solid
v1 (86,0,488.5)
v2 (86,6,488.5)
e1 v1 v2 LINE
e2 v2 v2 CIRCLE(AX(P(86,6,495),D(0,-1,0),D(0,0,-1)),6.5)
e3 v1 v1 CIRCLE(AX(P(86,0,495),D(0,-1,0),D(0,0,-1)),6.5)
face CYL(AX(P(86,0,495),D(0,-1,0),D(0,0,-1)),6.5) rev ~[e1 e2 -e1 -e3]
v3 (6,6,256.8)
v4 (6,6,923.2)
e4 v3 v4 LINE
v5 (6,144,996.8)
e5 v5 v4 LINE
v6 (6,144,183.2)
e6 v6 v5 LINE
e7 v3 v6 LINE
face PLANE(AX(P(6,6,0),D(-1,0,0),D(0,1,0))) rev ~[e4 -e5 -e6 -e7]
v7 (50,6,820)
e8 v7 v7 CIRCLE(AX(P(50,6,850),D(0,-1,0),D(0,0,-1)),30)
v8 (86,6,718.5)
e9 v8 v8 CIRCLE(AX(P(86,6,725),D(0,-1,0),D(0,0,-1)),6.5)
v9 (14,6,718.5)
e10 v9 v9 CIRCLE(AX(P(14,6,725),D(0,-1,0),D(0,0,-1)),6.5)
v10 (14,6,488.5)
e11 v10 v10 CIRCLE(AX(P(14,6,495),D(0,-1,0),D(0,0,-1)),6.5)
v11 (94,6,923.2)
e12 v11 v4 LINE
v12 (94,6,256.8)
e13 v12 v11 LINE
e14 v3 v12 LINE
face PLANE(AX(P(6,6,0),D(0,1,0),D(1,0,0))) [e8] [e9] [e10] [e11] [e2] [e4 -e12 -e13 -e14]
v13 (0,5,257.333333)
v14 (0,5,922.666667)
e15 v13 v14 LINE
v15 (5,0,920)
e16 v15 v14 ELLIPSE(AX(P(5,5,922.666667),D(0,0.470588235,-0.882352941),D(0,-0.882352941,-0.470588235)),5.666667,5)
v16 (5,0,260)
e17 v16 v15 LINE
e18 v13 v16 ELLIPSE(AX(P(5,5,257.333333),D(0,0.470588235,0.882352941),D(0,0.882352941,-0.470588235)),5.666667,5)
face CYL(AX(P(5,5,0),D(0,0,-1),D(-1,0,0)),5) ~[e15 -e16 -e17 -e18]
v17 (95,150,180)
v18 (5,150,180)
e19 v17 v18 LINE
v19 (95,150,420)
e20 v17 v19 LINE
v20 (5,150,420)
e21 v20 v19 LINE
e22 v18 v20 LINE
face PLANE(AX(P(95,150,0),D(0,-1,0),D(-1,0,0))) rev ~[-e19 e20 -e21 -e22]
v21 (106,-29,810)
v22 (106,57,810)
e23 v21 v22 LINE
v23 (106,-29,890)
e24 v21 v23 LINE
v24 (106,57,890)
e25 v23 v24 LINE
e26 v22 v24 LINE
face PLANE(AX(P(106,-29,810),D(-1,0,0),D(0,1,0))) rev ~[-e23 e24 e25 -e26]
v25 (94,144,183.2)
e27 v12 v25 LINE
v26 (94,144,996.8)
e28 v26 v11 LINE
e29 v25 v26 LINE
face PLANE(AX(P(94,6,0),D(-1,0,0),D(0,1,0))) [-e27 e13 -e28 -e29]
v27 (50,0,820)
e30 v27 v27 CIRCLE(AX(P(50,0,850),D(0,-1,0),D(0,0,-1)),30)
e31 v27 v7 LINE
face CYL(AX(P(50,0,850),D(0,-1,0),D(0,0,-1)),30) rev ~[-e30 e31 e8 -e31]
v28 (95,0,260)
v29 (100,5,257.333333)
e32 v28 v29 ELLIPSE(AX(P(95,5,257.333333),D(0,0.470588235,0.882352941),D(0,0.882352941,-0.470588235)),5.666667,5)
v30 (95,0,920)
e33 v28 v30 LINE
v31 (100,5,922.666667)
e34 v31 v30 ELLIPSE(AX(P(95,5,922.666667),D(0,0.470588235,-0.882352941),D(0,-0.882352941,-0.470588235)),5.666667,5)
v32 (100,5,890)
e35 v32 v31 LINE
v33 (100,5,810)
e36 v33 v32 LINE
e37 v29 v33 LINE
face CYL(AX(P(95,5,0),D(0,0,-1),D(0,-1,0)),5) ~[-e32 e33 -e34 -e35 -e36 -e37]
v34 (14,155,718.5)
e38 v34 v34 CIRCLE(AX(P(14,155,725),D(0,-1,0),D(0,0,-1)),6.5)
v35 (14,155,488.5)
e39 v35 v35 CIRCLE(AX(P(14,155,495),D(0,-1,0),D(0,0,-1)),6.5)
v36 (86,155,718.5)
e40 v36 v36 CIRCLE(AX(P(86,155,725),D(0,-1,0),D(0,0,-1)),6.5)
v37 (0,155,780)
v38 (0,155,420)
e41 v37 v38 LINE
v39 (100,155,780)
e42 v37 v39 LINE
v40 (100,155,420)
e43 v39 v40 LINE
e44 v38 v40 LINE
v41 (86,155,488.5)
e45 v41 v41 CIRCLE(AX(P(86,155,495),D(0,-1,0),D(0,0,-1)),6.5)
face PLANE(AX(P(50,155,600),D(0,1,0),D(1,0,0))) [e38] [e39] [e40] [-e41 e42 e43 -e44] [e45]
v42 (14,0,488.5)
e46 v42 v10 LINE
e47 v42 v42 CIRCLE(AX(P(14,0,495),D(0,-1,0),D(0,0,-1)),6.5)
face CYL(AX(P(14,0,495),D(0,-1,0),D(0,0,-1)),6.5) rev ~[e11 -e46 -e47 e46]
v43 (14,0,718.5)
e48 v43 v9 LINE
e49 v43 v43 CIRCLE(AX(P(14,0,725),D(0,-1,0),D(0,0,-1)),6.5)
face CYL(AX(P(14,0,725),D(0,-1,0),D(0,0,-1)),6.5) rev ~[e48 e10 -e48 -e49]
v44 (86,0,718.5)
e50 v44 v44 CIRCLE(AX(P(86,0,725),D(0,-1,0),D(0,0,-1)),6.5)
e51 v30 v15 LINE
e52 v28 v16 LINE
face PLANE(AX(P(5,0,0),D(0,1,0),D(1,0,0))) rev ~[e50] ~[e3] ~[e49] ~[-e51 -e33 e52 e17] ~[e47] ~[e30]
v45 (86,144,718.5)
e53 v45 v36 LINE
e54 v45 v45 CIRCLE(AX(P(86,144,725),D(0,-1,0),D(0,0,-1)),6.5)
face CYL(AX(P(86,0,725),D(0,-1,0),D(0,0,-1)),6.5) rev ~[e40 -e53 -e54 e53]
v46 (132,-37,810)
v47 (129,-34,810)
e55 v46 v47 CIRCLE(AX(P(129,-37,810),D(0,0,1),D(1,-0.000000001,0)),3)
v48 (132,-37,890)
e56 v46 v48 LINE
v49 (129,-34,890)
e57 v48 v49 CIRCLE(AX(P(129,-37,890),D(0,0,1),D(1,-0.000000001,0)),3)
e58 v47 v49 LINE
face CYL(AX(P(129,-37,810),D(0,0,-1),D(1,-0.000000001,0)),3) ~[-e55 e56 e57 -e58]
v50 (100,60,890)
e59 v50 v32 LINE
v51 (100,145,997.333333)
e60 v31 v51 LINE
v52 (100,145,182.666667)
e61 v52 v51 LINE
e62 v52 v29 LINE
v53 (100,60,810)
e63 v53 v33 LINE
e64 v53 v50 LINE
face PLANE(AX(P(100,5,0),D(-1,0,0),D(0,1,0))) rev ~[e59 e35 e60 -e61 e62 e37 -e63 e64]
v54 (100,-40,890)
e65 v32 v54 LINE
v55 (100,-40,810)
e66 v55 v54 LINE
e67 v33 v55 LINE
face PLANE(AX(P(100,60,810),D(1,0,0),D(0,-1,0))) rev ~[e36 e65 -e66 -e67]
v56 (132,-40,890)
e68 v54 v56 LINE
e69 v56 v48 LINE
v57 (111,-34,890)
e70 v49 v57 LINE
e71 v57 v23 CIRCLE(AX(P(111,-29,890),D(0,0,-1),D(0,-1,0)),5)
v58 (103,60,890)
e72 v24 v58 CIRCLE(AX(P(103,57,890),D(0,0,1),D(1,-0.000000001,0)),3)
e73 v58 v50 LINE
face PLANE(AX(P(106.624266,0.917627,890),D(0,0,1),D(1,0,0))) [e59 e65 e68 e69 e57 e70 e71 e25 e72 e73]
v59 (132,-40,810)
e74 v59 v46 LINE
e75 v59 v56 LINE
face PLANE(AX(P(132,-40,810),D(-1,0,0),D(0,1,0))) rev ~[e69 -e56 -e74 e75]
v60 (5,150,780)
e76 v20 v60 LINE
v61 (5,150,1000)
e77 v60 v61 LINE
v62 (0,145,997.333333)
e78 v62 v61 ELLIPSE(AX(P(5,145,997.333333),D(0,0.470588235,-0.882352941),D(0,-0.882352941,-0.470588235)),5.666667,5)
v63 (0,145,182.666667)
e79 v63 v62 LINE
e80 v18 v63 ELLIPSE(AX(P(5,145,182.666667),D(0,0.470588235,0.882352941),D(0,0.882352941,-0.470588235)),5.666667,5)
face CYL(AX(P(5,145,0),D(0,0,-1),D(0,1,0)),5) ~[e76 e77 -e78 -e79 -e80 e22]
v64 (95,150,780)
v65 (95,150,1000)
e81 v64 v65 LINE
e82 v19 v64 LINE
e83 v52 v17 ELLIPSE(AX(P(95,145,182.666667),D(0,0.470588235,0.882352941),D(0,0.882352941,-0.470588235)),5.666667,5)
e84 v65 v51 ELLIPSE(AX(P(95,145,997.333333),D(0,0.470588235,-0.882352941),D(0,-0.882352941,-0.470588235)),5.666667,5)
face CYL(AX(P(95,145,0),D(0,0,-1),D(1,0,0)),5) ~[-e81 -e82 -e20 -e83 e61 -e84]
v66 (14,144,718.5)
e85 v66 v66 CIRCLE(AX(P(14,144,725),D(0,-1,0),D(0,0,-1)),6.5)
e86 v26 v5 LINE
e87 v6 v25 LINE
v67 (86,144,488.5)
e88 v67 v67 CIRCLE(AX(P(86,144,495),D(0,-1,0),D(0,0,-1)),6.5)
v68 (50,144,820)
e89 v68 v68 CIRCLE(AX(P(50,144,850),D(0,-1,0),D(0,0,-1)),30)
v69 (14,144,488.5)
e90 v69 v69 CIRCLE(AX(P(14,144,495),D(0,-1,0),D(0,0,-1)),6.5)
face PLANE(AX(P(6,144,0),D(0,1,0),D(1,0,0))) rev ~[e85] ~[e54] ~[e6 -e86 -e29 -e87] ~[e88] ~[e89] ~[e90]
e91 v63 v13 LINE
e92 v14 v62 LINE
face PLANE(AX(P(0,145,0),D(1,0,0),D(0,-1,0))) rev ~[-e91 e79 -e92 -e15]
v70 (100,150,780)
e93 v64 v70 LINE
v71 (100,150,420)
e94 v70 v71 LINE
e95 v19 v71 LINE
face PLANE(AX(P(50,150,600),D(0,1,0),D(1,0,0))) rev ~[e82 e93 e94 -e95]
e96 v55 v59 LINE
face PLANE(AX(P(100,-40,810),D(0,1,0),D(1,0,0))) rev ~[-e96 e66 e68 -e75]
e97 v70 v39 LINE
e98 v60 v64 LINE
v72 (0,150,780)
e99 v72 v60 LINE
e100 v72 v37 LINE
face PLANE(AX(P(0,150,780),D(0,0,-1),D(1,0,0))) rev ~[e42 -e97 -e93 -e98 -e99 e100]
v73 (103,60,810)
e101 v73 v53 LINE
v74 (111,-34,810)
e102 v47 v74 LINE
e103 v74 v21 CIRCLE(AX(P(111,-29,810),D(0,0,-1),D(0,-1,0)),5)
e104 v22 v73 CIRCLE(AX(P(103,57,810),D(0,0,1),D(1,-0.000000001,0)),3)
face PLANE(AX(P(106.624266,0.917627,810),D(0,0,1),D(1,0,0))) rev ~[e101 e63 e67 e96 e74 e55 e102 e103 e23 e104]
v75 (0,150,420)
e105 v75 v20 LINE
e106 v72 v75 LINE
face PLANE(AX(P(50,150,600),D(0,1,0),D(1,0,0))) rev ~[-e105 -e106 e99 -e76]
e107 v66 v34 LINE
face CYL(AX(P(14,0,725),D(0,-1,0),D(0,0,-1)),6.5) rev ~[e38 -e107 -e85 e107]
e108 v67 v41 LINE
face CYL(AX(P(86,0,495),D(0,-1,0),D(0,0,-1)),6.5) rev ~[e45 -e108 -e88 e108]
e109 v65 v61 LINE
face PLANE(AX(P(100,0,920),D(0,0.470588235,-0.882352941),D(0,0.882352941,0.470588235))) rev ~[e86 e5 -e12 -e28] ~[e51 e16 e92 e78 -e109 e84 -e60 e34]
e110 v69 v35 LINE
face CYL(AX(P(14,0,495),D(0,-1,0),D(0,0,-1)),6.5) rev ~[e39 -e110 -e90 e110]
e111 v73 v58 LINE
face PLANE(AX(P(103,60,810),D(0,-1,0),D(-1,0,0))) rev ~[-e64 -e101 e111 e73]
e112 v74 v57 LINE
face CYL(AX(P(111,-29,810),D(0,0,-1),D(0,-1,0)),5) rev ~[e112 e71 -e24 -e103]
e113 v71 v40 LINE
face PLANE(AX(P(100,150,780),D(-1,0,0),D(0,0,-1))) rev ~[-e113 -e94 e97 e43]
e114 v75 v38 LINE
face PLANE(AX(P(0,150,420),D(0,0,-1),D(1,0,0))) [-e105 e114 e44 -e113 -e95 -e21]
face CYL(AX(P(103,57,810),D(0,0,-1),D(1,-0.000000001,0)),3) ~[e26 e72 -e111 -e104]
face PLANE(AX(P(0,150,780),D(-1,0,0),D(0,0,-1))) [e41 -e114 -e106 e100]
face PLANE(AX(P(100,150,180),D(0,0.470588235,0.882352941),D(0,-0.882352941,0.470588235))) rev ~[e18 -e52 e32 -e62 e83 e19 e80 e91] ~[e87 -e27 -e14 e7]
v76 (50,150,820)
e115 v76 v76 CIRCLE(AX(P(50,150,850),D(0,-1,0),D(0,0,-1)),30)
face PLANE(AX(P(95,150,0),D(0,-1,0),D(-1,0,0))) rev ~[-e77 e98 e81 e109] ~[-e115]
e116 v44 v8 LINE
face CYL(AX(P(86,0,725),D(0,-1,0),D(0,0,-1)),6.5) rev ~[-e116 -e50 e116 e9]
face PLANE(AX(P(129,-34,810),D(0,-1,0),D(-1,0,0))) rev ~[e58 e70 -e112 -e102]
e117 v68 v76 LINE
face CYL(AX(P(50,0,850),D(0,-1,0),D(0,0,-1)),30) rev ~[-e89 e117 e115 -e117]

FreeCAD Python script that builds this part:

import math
import FreeCAD as App
import Part
import Sketcher
Q = App.Units.Quantity


def add_polygon(sketch, points):
    """Adds a closed chain of lines whose ends are joined by coincident constraints."""
    first, n = sketch.GeometryCount, len(points)
    for a, b in zip(points, points[1:] + points[:1]):
        sketch.addGeometry(Part.LineSegment(App.Vector(*a, 0), App.Vector(*b, 0)), False)
    for i in range(n):
        sketch.addConstraint(Sketcher.Constraint("Coincident", first + i, 2, first + (i + 1) % n, 1))

doc = App.newDocument("Part")
body = doc.addObject("PartDesign::Body", "Body")

# Sketch on XY plane
sketch1 = body.newObject("Sketcher::SketchObject", "Sketch")
sketch1.AttachmentSupport = (doc.getObject("XY_Plane"), [""])
sketch1.MapMode = "FlatFace"
sketch1.addGeometry(Part.LineSegment(App.Vector(5, 0, 0), App.Vector(95, 0, 0)), False)  # 0
sketch1.addGeometry(Part.ArcOfCircle(Part.Circle(App.Vector(95, 5, 0), App.Vector(0, 0, 1), 5), math.radians(-90), math.radians(0)), False)  # 1
sketch1.addGeometry(Part.LineSegment(App.Vector(100, 5, 0), App.Vector(100, 145, 0)), False)  # 2
sketch1.addGeometry(Part.ArcOfCircle(Part.Circle(App.Vector(95, 145, 0), App.Vector(0, 0, 1), 5), math.radians(0), math.radians(90)), False)  # 3
sketch1.addGeometry(Part.LineSegment(App.Vector(95, 150, 0), App.Vector(5, 150, 0)), False)  # 4
sketch1.addGeometry(Part.ArcOfCircle(Part.Circle(App.Vector(5, 145, 0), App.Vector(0, 0, 1), 5), math.radians(90), math.radians(180)), False)  # 5
sketch1.addGeometry(Part.LineSegment(App.Vector(0, 145, 0), App.Vector(0, 5, 0)), False)  # 6
sketch1.addGeometry(Part.ArcOfCircle(Part.Circle(App.Vector(5, 5, 0), App.Vector(0, 0, 1), 5), math.radians(180), math.radians(270)), False)  # 7
add_polygon(sketch1, [(94, 6), (6, 6), (6, 144), (94, 144)])  # lines 8-11
sketch1.addConstraint(Sketcher.Constraint("Tangent", 0, 2, 1, 1))
sketch1.addConstraint(Sketcher.Constraint("Tangent", 1, 2, 2, 1))
sketch1.addConstraint(Sketcher.Constraint("Tangent", 2, 2, 3, 1))
sketch1.addConstraint(Sketcher.Constraint("Tangent", 3, 2, 4, 1))
sketch1.addConstraint(Sketcher.Constraint("Tangent", 4, 2, 5, 1))
sketch1.addConstraint(Sketcher.Constraint("Tangent", 5, 2, 6, 1))
sketch1.addConstraint(Sketcher.Constraint("Tangent", 6, 2, 7, 1))
sketch1.addConstraint(Sketcher.Constraint("Tangent", 7, 2, 0, 1))
sketch1.addConstraint(Sketcher.Constraint("Horizontal", 0))
sketch1.addConstraint(Sketcher.Constraint("Vertical", 2))
sketch1.addConstraint(Sketcher.Constraint("Horizontal", 4))
sketch1.addConstraint(Sketcher.Constraint("Vertical", 6))
sketch1.addConstraint(Sketcher.Constraint("Horizontal", 8))
sketch1.addConstraint(Sketcher.Constraint("Vertical", 9))
sketch1.addConstraint(Sketcher.Constraint("Horizontal", 10))
sketch1.addConstraint(Sketcher.Constraint("Vertical", 11))
sketch1.addConstraint(Sketcher.Constraint("Equal", 1, 3))
sketch1.addConstraint(Sketcher.Constraint("Equal", 3, 5))
sketch1.addConstraint(Sketcher.Constraint("Equal", 5, 7))
sketch1.addConstraint(Sketcher.Constraint("PointOnObject", 0, 2, -1))
sketch1.addConstraint(Sketcher.Constraint("PointOnObject", 5, 2, -2))
sketch1.addConstraint(Sketcher.Constraint("Radius", 1, Q("5 mm")))
sketch1.addConstraint(Sketcher.Constraint("DistanceX", 0, 1, 0, 2, Q("90 mm")))
sketch1.addConstraint(Sketcher.Constraint("DistanceX", 8, 2, 8, 1, Q("88 mm")))
sketch1.addConstraint(Sketcher.Constraint("DistanceY", 2, 1, 2, 2, Q("140 mm")))
sketch1.addConstraint(Sketcher.Constraint("DistanceY", 9, 1, 9, 2, Q("138 mm")))
sketch1.addConstraint(Sketcher.Constraint("DistanceX", -1, 1, 8, 2, Q("6 mm")))
sketch1.addConstraint(Sketcher.Constraint("DistanceY", -1, 1, 8, 2, Q("6 mm")))
pad1 = body.newObject("PartDesign::Pad", "Pad")
pad1.Profile = sketch1
pad1.Length = 1000

# Sketch on YZ plane
sketch2 = body.newObject("Sketcher::SketchObject", "Sketch001")
sketch2.AttachmentSupport = (doc.getObject("YZ_Plane"), [""])
sketch2.MapMode = "FlatFace"
sketch2.AttachmentOffset = App.Placement(App.Vector(0, 0, 100), App.Rotation())
add_polygon(sketch2, [(0, 920), (150, 1000), (0, 1000)])  # lines 0-2
sketch2.addConstraint(Sketcher.Constraint("Horizontal", 1))
sketch2.addConstraint(Sketcher.Constraint("Vertical", 2))
sketch2.addConstraint(Sketcher.Constraint("PointOnObject", 1, 2, -2))
sketch2.addConstraint(Sketcher.Constraint("DistanceX", 1, 2, 1, 1, Q("150 mm")))
sketch2.addConstraint(Sketcher.Constraint("DistanceY", 2, 2, 2, 1, Q("80 mm")))
sketch2.addConstraint(Sketcher.Constraint("DistanceY", -1, 1, 0, 2, Q("1000 mm")))
pocket1 = body.newObject("PartDesign::Pocket", "Pocket")
pocket1.Profile = sketch2
pocket1.Type = "ThroughAll"

# Sketch on YZ plane
sketch3 = body.newObject("Sketcher::SketchObject", "Sketch002")
sketch3.AttachmentSupport = (doc.getObject("YZ_Plane"), [""])
sketch3.MapMode = "FlatFace"
sketch3.AttachmentOffset = App.Placement(App.Vector(0, 0, 100), App.Rotation())
add_polygon(sketch3, [(150, 180), (0, 260), (0, 0), (150, 0)])  # lines 0-3
sketch3.addConstraint(Sketcher.Constraint("Vertical", 1))
sketch3.addConstraint(Sketcher.Constraint("Horizontal", 2))
sketch3.addConstraint(Sketcher.Constraint("Vertical", 3))
sketch3.addConstraint(Sketcher.Constraint("Coincident", 1, 2, -1, 1))
sketch3.addConstraint(Sketcher.Constraint("DistanceX", 2, 1, 2, 2, Q("150 mm")))
sketch3.addConstraint(Sketcher.Constraint("DistanceY", 1, 2, 1, 1, Q("260 mm")))
sketch3.addConstraint(Sketcher.Constraint("DistanceY", 3, 1, 3, 2, Q("180 mm")))
pocket2 = body.newObject("PartDesign::Pocket", "Pocket001")
pocket2.Profile = sketch3
pocket2.Type = "ThroughAll"

# Sketch on XZ plane
sketch4 = body.newObject("Sketcher::SketchObject", "Sketch003")
sketch4.AttachmentSupport = (doc.getObject("XZ_Plane"), [""])
sketch4.MapMode = "FlatFace"
sketch4.addGeometry(Part.Circle(App.Vector(50, 850, 0), App.Vector(0, 0, 1), 30), False)
sketch4.addConstraint(Sketcher.Constraint("Diameter", 0, Q("60 mm")))
sketch4.addConstraint(Sketcher.Constraint("DistanceX", -1, 1, 0, 3, Q("50 mm")))
sketch4.addConstraint(Sketcher.Constraint("DistanceY", -1, 1, 0, 3, Q("850 mm")))
pocket3 = body.newObject("PartDesign::Pocket", "Pocket002")
pocket3.Profile = sketch4
pocket3.Type = "ThroughAll"

# Sketch on XZ plane
sketch5 = body.newObject("Sketcher::SketchObject", "Sketch004")
sketch5.AttachmentSupport = (doc.getObject("XZ_Plane"), [""])
sketch5.MapMode = "FlatFace"
sketch5.AttachmentOffset = App.Placement(App.Vector(0, 0, -150), App.Rotation())
add_polygon(sketch5, [(0, 420), (0, 780), (100, 780), (100, 420)])  # lines 0-3
sketch5.addConstraint(Sketcher.Constraint("Vertical", 0))
sketch5.addConstraint(Sketcher.Constraint("Horizontal", 1))
sketch5.addConstraint(Sketcher.Constraint("Vertical", 2))
sketch5.addConstraint(Sketcher.Constraint("Horizontal", 3))
sketch5.addConstraint(Sketcher.Constraint("PointOnObject", 0, 2, -2))
sketch5.addConstraint(Sketcher.Constraint("DistanceX", 1, 1, 1, 2, Q("100 mm")))
sketch5.addConstraint(Sketcher.Constraint("DistanceY", 0, 1, 0, 2, Q("360 mm")))
sketch5.addConstraint(Sketcher.Constraint("DistanceY", -1, 1, 0, 2, Q("780 mm")))
pad2 = body.newObject("PartDesign::Pad", "Pad001")
pad2.Profile = sketch5
pad2.Length = 5
pad2.Reversed = True

# Sketch on XZ plane
sketch6 = body.newObject("Sketcher::SketchObject", "Sketch005")
sketch6.AttachmentSupport = (doc.getObject("XZ_Plane"), [""])
sketch6.MapMode = "FlatFace"
sketch6.addGeometry(Part.Circle(App.Vector(14, 725, 0), App.Vector(0, 0, 1), 6.5), False)
sketch6.addGeometry(Part.Circle(App.Vector(14, 495, 0), App.Vector(0, 0, 1), 6.5), False)
sketch6.addGeometry(Part.Circle(App.Vector(86, 495, 0), App.Vector(0, 0, 1), 6.5), False)
sketch6.addGeometry(Part.Circle(App.Vector(86, 725, 0), App.Vector(0, 0, 1), 6.5), False)
sketch6.addConstraint(Sketcher.Constraint("Equal", 0, 1))
sketch6.addConstraint(Sketcher.Constraint("Equal", 1, 2))
sketch6.addConstraint(Sketcher.Constraint("Equal", 2, 3))
sketch6.addConstraint(Sketcher.Constraint("Horizontal", 1, 3, 2, 3))
sketch6.addConstraint(Sketcher.Constraint("Horizontal", 0, 3, 3, 3))
sketch6.addConstraint(Sketcher.Constraint("Vertical", 0, 3, 1, 3))
sketch6.addConstraint(Sketcher.Constraint("Vertical", 2, 3, 3, 3))
sketch6.addConstraint(Sketcher.Constraint("Diameter", 0, Q("13 mm")))
sketch6.addConstraint(Sketcher.Constraint("DistanceX", -1, 1, 0, 3, Q("14 mm")))
sketch6.addConstraint(Sketcher.Constraint("DistanceY", -1, 1, 0, 3, Q("725 mm")))
sketch6.addConstraint(Sketcher.Constraint("DistanceY", -1, 1, 1, 3, Q("495 mm")))
sketch6.addConstraint(Sketcher.Constraint("DistanceX", -1, 1, 2, 3, Q("86 mm")))
pocket4 = body.newObject("PartDesign::Pocket", "Pocket003")
pocket4.Profile = sketch6
pocket4.Type = "ThroughAll"

# Sketch on XY plane
sketch7 = body.newObject("Sketcher::SketchObject", "Sketch006")
sketch7.AttachmentSupport = (doc.getObject("XY_Plane"), [""])
sketch7.MapMode = "FlatFace"
sketch7.AttachmentOffset = App.Placement(App.Vector(0, 0, 850), App.Rotation())
sketch7.addGeometry(Part.LineSegment(App.Vector(100, 60, 0), App.Vector(100, -40, 0)), False)
sketch7.addGeometry(Part.LineSegment(App.Vector(100, -40, 0), App.Vector(132, -40, 0)), False)
sketch7.addGeometry(Part.LineSegment(App.Vector(132, -40, 0), App.Vector(132, -37, 0)), False)
sketch7.addGeometry(Part.ArcOfCircle(Part.Circle(App.Vector(129, -37, 0), App.Vector(0, 0, 1), 3), math.radians(0), math.radians(90)), False)
sketch7.addGeometry(Part.LineSegment(App.Vector(129, -34, 0), App.Vector(111, -34, 0)), False)
sketch7.addGeometry(Part.ArcOfCircle(Part.Circle(App.Vector(111, -29, 0), App.Vector(0, 0, 1), 5), math.radians(180), math.radians(270)), False)
sketch7.addGeometry(Part.LineSegment(App.Vector(106, -29, 0), App.Vector(106, 57, 0)), False)
sketch7.addGeometry(Part.ArcOfCircle(Part.Circle(App.Vector(103, 57, 0), App.Vector(0, 0, 1), 3), math.radians(0), math.radians(90)), False)
sketch7.addGeometry(Part.LineSegment(App.Vector(103, 60, 0), App.Vector(100, 60, 0)), False)
sketch7.addConstraint(Sketcher.Constraint("Coincident", 0, 2, 1, 1))
sketch7.addConstraint(Sketcher.Constraint("Coincident", 1, 2, 2, 1))
sketch7.addConstraint(Sketcher.Constraint("Tangent", 2, 2, 3, 1))
sketch7.addConstraint(Sketcher.Constraint("Tangent", 3, 2, 4, 1))
sketch7.addConstraint(Sketcher.Constraint("Tangent", 4, 2, 5, 2))
sketch7.addConstraint(Sketcher.Constraint("Tangent", 5, 1, 6, 1))
sketch7.addConstraint(Sketcher.Constraint("Tangent", 6, 2, 7, 1))
sketch7.addConstraint(Sketcher.Constraint("Tangent", 7, 2, 8, 1))
sketch7.addConstraint(Sketcher.Constraint("Coincident", 8, 2, 0, 1))
sketch7.addConstraint(Sketcher.Constraint("Vertical", 0))
sketch7.addConstraint(Sketcher.Constraint("Horizontal", 1))
sketch7.addConstraint(Sketcher.Constraint("Vertical", 2))
sketch7.addConstraint(Sketcher.Constraint("Horizontal", 4))
sketch7.addConstraint(Sketcher.Constraint("Vertical", 6))
sketch7.addConstraint(Sketcher.Constraint("Horizontal", 8))
sketch7.addConstraint(Sketcher.Constraint("Equal", 3, 7))
sketch7.addConstraint(Sketcher.Constraint("Equal", 8, 2))
sketch7.addConstraint(Sketcher.Constraint("Radius", 3, Q("3 mm")))
sketch7.addConstraint(Sketcher.Constraint("Radius", 5, Q("5 mm")))
sketch7.addConstraint(Sketcher.Constraint("DistanceX", 1, 1, 1, 2, Q("32 mm")))
sketch7.addConstraint(Sketcher.Constraint("DistanceX", 4, 2, 4, 1, Q("18 mm")))
sketch7.addConstraint(Sketcher.Constraint("DistanceY", 0, 2, 0, 1, Q("100 mm")))
sketch7.addConstraint(Sketcher.Constraint("DistanceX", -1, 1, 3, 3, Q("129 mm")))
sketch7.addConstraint(Sketcher.Constraint("DistanceY", 3, 3, -1, 1, Q("37 mm")))
pad3 = body.newObject("PartDesign::Pad", "Pad002")
pad3.Profile = sketch7
pad3.Type = "TwoLengths"
pad3.Length = 40
pad3.Length2 = 40

doc.recompute()
